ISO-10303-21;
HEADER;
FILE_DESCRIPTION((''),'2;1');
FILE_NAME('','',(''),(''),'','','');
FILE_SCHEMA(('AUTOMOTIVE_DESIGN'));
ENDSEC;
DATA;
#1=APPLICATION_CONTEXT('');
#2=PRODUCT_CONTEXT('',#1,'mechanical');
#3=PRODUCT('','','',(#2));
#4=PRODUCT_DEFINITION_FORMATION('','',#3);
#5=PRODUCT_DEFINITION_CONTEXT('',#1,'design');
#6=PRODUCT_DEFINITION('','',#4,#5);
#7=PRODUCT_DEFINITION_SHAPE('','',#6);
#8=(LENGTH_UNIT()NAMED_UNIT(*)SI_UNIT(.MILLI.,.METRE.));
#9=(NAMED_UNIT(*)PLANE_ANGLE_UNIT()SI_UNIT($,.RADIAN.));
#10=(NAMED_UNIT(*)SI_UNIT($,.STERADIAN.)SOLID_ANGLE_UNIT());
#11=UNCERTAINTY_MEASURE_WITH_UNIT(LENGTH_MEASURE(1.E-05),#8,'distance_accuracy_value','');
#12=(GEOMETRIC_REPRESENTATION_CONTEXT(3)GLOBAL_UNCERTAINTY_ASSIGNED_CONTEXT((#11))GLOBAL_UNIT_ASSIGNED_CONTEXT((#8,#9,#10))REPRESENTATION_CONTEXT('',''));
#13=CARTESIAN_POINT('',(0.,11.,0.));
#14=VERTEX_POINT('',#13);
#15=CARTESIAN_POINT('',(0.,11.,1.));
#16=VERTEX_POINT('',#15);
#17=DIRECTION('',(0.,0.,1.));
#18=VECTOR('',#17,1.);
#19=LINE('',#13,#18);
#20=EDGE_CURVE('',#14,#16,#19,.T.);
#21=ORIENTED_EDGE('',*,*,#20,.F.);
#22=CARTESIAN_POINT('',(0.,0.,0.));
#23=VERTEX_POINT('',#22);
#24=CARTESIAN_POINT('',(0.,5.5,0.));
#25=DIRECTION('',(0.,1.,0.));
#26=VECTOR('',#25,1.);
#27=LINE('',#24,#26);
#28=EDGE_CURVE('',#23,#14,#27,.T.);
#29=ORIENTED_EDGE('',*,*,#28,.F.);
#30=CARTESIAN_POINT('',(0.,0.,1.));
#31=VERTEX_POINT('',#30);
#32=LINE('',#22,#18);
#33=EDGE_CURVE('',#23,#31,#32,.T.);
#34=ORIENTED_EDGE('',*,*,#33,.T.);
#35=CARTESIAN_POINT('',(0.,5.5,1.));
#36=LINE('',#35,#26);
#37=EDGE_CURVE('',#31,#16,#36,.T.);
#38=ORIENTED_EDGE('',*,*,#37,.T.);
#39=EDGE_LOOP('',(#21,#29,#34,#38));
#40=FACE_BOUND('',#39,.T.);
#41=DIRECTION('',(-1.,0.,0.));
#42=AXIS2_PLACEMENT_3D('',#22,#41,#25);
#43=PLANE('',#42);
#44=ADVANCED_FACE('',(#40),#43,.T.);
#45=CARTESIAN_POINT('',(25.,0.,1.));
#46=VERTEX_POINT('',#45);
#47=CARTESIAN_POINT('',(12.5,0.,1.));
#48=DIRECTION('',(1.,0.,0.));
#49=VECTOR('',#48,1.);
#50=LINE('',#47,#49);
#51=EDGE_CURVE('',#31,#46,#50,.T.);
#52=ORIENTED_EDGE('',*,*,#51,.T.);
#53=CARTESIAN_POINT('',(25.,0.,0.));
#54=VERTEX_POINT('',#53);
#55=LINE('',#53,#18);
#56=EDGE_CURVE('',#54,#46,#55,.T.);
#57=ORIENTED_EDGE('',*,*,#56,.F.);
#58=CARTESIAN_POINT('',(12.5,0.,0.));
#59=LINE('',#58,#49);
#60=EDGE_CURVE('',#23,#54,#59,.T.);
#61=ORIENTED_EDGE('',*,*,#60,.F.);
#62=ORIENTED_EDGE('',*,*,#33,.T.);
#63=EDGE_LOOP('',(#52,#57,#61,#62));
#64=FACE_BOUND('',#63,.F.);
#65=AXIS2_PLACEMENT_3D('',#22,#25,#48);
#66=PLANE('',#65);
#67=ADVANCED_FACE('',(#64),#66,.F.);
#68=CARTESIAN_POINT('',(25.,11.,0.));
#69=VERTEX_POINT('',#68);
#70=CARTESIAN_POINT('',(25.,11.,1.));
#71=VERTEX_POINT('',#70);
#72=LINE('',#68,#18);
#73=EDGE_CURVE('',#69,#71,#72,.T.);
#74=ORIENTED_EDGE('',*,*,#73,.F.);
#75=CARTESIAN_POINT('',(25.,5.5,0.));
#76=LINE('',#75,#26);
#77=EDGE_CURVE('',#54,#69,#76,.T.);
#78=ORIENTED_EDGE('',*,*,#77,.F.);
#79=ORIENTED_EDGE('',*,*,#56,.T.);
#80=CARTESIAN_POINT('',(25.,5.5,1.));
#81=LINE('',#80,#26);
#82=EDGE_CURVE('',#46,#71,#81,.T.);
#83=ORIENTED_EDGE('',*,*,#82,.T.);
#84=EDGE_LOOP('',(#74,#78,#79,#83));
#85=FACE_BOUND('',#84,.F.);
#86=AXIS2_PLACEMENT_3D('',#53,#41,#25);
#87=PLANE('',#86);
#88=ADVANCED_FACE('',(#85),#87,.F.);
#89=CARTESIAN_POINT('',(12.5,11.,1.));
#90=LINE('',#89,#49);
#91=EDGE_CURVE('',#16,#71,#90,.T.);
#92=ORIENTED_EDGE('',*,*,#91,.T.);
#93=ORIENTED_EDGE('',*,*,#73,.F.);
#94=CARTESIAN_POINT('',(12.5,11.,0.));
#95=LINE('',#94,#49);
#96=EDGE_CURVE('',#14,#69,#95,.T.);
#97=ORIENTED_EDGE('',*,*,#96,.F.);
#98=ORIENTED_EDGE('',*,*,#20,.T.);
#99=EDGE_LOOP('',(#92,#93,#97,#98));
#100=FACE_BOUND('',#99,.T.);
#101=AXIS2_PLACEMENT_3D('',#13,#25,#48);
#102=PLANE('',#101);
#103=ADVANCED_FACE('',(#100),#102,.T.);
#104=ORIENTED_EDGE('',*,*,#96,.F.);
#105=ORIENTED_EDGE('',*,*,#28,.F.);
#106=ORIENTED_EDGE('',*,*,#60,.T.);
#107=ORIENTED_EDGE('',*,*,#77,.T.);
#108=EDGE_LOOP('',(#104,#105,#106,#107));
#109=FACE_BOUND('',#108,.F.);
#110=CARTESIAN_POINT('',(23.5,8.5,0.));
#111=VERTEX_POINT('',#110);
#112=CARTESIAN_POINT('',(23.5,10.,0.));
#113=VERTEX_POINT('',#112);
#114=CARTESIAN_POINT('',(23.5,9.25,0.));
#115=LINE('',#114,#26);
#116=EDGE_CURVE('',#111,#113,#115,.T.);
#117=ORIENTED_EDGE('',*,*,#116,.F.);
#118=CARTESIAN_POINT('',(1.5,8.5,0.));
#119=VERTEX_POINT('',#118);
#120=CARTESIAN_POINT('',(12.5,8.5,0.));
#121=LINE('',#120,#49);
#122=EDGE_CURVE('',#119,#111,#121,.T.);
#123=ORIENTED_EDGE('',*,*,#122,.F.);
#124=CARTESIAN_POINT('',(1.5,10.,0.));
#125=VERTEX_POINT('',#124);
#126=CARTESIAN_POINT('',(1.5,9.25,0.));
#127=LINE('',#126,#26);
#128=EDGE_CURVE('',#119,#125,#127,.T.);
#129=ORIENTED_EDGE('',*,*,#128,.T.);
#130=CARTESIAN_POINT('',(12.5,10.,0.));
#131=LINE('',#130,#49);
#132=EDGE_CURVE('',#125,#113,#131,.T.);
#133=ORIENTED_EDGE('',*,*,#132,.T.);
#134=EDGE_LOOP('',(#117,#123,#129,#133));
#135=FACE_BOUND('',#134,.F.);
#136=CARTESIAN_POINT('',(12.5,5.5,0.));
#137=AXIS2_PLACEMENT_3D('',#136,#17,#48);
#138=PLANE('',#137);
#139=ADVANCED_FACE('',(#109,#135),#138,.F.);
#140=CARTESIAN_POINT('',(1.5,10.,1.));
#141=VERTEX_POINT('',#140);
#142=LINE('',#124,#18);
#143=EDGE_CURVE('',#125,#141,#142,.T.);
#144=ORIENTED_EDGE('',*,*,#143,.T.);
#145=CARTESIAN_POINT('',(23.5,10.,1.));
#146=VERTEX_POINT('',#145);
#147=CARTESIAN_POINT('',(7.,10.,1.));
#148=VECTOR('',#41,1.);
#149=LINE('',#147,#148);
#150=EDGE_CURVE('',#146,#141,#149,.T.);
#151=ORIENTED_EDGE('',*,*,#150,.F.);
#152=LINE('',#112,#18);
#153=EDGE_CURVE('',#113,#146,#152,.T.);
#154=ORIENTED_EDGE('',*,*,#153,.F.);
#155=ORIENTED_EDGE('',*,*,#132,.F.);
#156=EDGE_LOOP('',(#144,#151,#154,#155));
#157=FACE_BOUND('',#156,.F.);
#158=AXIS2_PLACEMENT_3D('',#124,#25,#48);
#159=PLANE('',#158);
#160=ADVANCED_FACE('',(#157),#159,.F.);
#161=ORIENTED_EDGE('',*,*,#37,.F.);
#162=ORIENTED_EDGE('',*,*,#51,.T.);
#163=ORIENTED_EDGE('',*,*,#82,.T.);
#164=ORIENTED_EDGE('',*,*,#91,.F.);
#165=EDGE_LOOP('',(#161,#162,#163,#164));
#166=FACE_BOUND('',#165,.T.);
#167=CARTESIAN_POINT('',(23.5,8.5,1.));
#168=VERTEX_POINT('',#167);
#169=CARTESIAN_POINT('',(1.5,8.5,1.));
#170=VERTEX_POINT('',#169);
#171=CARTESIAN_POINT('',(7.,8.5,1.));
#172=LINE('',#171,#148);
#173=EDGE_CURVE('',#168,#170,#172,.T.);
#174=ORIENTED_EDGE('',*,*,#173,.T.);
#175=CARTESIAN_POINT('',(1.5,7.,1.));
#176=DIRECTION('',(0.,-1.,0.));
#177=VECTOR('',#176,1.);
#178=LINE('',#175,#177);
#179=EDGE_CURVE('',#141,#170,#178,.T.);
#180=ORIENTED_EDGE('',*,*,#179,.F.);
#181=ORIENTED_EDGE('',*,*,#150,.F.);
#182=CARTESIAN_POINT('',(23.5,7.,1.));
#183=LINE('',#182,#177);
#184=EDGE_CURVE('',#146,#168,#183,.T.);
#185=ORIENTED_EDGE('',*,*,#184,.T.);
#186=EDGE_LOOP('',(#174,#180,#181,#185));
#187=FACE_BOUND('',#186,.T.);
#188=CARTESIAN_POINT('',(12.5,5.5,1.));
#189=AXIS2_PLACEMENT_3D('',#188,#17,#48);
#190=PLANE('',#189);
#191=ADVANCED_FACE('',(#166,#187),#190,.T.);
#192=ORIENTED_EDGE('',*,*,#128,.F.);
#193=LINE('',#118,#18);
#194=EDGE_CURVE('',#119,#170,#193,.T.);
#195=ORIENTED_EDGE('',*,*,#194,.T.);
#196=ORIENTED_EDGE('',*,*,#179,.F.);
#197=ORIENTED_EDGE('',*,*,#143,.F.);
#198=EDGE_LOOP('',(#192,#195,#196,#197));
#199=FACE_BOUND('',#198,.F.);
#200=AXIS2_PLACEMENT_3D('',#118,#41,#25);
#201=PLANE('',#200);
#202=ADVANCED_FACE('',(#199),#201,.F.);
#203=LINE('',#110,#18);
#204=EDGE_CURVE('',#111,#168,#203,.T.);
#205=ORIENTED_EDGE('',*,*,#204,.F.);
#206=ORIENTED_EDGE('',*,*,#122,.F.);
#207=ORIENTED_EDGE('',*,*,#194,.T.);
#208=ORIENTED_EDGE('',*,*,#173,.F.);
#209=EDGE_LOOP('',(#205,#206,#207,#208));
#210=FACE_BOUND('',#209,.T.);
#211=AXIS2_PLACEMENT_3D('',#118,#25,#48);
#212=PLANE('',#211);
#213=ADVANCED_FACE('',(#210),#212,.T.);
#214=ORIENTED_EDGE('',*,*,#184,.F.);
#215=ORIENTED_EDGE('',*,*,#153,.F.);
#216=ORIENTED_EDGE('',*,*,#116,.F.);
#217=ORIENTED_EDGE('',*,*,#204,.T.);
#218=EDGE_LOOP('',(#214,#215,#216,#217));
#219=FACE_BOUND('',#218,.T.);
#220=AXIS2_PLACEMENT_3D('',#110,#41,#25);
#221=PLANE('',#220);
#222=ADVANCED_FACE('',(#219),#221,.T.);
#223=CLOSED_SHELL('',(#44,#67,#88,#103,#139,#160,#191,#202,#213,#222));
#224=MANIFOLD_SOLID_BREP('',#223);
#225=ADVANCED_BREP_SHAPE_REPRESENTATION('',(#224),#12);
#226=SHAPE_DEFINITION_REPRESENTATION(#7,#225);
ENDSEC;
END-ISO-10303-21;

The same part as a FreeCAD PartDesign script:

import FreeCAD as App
import Part
import Sketcher

V = App.Vector


def add_polygon(sketch, points):
    """Adds a closed chain of lines whose ends are joined by coincident constraints."""
    first, n = sketch.GeometryCount, len(points)
    for a, b in zip(points, points[1:] + points[:1]):
        sketch.addGeometry(Part.LineSegment(App.Vector(*a, 0), App.Vector(*b, 0)), False)
    for i in range(n):
        sketch.addConstraint(Sketcher.Constraint("Coincident", first + i, 2, first + (i + 1) % n, 1))

doc = App.newDocument("Part")
body = doc.addObject("PartDesign::Body", "Body")

sketch1 = body.newObject("Sketcher::SketchObject", "Sketch")
sketch1.AttachmentSupport = (doc.getObject("XY_Plane"), [""])
sketch1.MapMode = "FlatFace"
add_polygon(sketch1, [(1.5, 10), (1.5, 8.5), (23.5, 8.5), (23.5, 10)])
sketch1.addConstraint([
    Sketcher.Constraint("Vertical", 0),
    Sketcher.Constraint("Horizontal", 1),
    Sketcher.Constraint("Vertical", 2),
    Sketcher.Constraint("Horizontal", 3),
    Sketcher.Constraint("DistanceX", 1, 1, 1, 2, 22.0),
    Sketcher.Constraint("DistanceY", 0, 2, 0, 1, 1.5),
    Sketcher.Constraint("DistanceY", -1, 1, 2, 2, 10.0),
    Sketcher.Constraint("DistanceX", -1, 1, 0, 2, 1.5),
])
pad1 = body.newObject("PartDesign::Pad", "Pad")
pad1.Profile = sketch1
pad1.Length = 2
body2 = doc.addObject("PartDesign::Body", "Body001")

sketch2 = body2.newObject("Sketcher::SketchObject", "Sketch001")
sketch2.AttachmentSupport = (doc.getObject("XY_Plane001"), [""])
sketch2.MapMode = "FlatFace"
add_polygon(sketch2, [(0, 11), (0, 0), (25, 0), (25, 11)])
sketch2.addConstraint([
    Sketcher.Constraint("Vertical", 0),
    Sketcher.Constraint("Horizontal", 1),
    Sketcher.Constraint("Vertical", 2),
    Sketcher.Constraint("Horizontal", 3),
    Sketcher.Constraint("Coincident", 0, 2, -1, 1),
    Sketcher.Constraint("DistanceX", 1, 1, 1, 2, 25.0),
    Sketcher.Constraint("DistanceY", 0, 2, 0, 1, 11.0),
])
pad2 = body2.newObject("PartDesign::Pad", "Pad001")
pad2.Profile = sketch2
pad2.Length = 1
doc.recompute()

boolean = body2.newObject("PartDesign::Boolean", "Boolean")
boolean.Type = "Cut"
boolean.addObjects([body])

doc.recompute()
